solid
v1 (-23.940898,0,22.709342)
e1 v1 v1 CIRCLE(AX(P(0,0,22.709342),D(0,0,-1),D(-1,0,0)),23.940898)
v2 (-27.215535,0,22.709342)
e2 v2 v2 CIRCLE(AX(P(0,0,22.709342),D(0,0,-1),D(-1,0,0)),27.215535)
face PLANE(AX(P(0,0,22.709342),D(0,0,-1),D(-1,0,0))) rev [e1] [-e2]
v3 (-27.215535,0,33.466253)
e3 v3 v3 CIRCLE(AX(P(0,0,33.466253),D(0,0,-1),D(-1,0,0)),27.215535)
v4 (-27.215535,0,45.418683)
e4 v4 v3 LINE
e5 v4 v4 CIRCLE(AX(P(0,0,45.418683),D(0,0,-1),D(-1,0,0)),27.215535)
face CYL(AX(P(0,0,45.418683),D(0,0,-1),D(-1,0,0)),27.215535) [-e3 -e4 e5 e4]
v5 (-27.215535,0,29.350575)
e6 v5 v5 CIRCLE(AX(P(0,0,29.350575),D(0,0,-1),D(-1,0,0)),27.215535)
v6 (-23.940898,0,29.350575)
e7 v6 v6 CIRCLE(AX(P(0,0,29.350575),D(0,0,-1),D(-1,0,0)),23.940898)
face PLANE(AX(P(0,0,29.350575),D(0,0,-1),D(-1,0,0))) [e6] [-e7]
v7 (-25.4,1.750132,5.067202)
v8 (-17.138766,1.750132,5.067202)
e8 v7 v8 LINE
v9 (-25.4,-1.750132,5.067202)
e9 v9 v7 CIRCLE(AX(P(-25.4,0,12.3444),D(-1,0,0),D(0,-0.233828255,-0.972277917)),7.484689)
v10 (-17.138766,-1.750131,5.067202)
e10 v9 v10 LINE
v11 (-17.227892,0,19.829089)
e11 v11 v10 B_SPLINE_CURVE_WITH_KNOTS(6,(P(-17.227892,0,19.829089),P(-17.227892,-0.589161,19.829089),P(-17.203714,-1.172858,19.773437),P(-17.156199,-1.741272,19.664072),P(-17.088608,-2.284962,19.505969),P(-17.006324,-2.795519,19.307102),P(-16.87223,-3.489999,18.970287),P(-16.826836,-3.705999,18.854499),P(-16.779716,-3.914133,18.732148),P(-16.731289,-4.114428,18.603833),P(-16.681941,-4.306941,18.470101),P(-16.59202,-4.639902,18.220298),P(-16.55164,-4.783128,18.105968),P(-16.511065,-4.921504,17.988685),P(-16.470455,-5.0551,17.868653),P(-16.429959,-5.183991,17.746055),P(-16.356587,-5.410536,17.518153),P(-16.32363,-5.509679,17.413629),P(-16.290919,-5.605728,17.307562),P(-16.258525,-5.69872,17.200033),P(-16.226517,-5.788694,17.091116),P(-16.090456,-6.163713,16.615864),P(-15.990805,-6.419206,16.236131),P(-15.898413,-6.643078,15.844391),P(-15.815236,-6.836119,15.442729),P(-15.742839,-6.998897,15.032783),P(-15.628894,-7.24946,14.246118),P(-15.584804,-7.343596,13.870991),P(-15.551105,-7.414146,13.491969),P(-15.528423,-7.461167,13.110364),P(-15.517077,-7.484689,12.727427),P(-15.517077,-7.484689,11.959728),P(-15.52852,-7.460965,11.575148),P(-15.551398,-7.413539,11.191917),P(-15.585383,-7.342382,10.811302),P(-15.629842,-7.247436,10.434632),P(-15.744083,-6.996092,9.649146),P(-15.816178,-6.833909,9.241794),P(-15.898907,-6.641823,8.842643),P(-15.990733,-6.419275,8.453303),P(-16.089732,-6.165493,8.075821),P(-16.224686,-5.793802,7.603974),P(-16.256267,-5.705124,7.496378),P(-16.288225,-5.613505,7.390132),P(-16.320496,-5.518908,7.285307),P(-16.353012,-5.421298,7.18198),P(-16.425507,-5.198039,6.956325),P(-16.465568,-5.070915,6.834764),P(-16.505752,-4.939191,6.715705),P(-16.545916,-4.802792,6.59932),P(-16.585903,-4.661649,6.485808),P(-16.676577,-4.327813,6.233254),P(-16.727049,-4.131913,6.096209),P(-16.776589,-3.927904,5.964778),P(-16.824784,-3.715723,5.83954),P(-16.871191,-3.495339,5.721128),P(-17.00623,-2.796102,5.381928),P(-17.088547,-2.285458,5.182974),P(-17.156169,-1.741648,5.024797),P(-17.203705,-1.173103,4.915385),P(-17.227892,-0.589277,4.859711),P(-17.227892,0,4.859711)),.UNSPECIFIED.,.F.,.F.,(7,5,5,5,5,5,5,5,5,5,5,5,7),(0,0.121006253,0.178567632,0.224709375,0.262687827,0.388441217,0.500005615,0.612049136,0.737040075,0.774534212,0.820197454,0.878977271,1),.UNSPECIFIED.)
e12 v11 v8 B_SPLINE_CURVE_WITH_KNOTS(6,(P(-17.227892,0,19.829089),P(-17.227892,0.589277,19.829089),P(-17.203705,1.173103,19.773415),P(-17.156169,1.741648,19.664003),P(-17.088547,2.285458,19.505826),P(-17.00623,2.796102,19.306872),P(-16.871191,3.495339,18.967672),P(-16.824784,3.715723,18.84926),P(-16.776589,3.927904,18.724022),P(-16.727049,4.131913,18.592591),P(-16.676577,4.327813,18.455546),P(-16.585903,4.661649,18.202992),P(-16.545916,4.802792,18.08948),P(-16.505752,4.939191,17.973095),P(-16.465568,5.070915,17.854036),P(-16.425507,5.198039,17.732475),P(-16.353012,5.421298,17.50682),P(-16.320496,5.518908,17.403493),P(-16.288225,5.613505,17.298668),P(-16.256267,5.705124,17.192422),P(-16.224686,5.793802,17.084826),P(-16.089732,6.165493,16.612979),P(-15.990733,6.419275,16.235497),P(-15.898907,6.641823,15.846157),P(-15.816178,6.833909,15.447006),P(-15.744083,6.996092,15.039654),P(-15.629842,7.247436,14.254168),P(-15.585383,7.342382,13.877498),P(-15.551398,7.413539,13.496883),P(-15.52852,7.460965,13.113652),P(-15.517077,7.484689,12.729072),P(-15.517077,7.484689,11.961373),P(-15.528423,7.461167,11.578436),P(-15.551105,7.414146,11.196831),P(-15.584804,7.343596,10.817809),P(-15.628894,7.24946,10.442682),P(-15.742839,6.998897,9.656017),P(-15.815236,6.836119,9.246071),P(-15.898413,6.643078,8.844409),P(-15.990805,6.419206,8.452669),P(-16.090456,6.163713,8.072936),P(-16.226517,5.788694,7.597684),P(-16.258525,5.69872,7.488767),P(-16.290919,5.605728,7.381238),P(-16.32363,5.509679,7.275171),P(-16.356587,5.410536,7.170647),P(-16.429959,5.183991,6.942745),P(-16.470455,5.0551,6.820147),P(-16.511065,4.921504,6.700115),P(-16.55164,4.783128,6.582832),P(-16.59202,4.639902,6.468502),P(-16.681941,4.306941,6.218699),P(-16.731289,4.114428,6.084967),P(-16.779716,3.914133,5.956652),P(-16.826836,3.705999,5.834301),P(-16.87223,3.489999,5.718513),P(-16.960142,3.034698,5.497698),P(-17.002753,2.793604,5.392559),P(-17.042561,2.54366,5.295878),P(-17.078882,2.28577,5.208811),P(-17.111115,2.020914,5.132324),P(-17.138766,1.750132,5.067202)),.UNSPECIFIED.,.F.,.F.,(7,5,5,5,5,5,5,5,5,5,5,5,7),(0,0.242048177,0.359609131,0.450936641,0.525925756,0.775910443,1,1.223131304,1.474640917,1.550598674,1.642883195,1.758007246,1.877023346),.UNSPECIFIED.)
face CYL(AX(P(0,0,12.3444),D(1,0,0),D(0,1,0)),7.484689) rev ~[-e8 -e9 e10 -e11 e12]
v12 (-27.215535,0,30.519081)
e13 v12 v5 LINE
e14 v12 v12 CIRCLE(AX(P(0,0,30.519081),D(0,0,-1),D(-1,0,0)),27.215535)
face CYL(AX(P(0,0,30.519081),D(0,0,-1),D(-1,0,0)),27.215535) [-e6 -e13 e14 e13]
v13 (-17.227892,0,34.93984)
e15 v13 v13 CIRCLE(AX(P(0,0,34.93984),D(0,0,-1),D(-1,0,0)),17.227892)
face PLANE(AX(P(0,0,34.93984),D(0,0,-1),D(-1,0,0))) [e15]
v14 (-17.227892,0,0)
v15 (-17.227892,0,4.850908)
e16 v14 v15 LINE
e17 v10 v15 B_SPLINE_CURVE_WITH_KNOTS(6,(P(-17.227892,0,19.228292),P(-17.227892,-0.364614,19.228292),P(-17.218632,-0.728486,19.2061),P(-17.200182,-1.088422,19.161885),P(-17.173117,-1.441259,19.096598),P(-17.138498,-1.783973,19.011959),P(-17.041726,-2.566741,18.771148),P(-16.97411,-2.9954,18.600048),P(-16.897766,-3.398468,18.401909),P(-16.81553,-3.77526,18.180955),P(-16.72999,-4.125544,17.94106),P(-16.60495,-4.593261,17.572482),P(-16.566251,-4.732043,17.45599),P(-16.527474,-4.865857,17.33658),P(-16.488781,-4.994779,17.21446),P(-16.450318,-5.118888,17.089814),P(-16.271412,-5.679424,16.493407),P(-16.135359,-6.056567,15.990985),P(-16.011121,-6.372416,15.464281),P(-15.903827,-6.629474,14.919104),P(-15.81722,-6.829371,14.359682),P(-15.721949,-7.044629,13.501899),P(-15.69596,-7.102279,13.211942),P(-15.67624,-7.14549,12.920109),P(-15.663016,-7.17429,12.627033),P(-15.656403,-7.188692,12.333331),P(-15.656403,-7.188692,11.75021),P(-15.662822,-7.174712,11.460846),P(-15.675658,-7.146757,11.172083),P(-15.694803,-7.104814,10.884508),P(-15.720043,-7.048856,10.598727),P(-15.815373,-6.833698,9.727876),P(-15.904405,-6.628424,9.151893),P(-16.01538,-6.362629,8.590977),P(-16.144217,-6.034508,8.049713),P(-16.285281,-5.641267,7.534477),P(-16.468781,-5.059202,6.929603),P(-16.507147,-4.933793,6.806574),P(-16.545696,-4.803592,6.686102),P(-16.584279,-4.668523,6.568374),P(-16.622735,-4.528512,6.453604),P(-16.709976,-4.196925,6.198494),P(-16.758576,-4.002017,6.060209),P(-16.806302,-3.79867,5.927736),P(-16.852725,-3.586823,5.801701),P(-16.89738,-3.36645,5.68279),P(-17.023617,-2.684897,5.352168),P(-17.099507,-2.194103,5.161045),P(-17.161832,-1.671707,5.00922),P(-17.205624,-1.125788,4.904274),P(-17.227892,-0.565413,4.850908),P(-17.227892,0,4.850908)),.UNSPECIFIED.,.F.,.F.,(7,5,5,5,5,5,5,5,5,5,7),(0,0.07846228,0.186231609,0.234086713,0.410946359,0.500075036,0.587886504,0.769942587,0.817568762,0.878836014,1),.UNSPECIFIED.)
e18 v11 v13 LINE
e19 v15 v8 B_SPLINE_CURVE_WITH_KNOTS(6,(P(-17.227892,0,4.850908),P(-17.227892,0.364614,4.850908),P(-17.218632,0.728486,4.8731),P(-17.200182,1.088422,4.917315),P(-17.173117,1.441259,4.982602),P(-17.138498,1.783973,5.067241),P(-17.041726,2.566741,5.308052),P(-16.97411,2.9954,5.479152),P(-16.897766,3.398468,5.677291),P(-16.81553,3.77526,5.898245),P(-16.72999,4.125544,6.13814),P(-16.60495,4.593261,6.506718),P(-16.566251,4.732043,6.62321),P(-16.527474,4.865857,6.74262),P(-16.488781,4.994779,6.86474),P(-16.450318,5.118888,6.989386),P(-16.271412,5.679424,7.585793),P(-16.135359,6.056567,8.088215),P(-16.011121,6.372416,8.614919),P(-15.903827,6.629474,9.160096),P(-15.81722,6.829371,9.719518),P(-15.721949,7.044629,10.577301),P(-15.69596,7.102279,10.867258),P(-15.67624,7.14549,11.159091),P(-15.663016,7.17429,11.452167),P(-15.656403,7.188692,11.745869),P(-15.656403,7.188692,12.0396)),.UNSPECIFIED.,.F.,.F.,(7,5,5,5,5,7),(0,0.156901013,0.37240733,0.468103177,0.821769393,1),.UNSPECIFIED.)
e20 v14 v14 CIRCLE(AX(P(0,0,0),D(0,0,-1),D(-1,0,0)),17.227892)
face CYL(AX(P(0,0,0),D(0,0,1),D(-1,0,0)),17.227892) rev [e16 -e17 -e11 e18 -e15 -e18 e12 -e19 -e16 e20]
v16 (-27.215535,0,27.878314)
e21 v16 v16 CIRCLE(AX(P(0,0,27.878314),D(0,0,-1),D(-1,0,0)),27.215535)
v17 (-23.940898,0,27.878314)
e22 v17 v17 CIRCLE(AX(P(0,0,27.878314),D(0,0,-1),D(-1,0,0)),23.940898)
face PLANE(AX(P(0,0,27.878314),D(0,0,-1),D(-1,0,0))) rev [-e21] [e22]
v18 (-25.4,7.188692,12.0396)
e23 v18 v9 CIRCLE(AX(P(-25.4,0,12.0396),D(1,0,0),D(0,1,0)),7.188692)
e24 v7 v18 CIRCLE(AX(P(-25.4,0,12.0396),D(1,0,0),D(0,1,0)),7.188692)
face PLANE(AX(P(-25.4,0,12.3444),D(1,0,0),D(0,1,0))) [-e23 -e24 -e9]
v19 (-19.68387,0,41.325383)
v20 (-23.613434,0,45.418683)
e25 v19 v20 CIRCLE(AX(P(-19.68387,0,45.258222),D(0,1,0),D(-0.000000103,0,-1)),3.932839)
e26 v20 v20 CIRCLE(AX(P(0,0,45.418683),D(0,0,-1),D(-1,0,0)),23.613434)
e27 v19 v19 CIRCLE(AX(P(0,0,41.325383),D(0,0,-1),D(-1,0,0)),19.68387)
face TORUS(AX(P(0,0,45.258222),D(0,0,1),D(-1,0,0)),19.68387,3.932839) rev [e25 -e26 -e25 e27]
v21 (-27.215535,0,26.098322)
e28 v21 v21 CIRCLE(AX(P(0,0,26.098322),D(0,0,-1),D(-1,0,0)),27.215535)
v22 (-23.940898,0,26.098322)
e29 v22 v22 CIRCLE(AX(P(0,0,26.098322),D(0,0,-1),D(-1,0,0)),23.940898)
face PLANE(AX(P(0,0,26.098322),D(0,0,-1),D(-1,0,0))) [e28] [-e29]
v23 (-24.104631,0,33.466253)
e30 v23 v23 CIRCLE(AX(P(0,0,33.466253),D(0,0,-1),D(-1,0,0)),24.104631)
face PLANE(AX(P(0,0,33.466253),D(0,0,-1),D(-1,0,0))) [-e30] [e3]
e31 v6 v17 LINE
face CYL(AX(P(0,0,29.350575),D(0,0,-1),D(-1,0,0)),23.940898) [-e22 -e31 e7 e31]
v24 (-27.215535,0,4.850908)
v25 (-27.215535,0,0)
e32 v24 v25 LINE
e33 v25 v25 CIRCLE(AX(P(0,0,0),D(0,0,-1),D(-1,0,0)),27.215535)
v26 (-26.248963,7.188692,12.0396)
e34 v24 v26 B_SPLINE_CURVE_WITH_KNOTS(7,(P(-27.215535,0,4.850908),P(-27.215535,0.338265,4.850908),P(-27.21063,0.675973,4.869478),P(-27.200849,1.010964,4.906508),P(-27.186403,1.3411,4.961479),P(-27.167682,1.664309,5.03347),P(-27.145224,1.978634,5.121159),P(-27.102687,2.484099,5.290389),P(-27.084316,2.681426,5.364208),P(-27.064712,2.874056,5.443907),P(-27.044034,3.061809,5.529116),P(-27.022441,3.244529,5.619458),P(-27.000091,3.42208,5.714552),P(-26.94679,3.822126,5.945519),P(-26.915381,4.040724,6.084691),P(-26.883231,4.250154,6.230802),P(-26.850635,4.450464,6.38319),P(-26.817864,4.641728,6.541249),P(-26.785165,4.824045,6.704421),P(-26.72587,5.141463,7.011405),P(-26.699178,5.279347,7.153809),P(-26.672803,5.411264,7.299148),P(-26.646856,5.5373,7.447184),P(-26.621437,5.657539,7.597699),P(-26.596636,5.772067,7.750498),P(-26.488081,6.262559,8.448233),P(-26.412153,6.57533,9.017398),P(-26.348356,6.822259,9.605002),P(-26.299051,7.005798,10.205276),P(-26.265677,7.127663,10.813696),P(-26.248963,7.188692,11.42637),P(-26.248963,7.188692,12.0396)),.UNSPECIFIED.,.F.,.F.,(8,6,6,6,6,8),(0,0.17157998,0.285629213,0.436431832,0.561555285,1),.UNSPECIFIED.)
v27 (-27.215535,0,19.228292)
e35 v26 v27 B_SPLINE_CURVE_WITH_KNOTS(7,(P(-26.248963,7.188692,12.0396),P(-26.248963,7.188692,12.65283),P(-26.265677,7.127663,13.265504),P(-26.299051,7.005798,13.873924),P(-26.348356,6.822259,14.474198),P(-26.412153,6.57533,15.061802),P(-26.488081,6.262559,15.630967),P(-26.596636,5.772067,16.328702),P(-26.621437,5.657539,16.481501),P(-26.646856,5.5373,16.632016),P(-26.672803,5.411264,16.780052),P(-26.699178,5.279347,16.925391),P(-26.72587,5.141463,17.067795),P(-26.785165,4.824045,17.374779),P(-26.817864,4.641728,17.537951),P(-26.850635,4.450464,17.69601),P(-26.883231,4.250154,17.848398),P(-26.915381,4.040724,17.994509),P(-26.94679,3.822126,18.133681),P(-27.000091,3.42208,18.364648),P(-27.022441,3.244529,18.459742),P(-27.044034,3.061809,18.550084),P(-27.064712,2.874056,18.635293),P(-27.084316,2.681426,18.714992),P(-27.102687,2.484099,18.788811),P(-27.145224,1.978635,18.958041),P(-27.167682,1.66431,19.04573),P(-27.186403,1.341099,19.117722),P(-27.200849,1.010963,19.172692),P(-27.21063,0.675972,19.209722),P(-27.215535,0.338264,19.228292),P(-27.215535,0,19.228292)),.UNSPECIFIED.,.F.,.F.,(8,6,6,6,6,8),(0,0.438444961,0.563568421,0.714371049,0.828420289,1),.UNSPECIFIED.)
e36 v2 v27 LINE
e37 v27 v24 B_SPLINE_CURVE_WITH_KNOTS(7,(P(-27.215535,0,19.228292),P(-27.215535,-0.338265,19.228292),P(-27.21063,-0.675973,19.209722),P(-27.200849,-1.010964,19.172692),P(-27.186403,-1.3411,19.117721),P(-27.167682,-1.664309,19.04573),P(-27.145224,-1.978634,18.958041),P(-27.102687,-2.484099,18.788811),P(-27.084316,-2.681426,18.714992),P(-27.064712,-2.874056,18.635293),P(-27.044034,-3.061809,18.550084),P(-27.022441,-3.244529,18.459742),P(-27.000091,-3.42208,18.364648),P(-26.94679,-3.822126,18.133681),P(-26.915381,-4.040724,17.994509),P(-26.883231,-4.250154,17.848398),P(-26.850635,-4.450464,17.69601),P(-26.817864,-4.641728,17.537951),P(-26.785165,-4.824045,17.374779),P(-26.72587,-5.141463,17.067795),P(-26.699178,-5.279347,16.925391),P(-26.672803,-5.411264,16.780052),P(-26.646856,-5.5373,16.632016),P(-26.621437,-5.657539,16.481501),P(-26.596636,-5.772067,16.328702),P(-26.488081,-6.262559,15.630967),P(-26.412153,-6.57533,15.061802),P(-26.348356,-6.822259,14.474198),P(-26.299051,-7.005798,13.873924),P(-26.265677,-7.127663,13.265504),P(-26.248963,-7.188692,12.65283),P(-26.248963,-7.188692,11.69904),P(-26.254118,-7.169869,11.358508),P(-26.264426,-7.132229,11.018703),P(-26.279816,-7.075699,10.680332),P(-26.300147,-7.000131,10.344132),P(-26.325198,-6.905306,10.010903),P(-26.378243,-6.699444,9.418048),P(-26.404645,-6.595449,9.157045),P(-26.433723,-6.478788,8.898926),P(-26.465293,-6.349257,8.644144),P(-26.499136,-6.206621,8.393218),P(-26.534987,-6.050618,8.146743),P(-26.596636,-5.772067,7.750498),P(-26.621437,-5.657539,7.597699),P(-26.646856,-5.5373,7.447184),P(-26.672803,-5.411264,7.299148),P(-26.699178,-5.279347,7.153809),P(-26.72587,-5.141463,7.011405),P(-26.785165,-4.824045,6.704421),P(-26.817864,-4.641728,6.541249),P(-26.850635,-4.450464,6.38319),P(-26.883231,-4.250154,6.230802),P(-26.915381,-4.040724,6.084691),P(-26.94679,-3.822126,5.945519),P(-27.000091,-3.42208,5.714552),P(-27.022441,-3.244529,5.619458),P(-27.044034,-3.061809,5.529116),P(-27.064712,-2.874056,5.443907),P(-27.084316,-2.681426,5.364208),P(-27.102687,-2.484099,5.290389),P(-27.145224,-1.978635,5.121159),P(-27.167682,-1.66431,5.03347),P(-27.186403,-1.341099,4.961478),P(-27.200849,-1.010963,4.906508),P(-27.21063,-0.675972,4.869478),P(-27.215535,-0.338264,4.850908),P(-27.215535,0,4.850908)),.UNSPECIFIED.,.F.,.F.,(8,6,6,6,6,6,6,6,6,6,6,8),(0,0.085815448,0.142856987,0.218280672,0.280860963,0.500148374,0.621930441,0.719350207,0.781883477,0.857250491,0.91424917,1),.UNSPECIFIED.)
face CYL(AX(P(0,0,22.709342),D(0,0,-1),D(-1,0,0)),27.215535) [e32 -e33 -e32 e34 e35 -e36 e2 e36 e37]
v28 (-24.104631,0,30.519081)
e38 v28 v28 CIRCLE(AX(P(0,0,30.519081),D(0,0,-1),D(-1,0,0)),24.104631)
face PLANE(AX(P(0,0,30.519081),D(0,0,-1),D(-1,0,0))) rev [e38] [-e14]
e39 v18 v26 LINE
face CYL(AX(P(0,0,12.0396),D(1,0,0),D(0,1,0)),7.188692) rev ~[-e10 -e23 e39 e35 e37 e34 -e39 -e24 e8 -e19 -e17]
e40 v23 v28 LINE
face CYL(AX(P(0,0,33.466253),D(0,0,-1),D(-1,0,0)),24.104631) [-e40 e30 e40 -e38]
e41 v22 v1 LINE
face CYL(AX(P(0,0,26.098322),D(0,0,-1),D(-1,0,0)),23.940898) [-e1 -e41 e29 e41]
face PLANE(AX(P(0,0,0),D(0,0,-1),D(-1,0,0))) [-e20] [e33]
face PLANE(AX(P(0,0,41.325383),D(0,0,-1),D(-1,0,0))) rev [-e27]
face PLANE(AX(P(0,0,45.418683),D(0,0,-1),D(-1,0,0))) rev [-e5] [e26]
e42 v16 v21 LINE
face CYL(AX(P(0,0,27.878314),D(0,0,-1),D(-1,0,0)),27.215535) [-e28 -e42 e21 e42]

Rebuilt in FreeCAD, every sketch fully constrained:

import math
import FreeCAD as App
import Part
import Sketcher
from FreeCAD import Vector
Q = App.Units.Quantity

doc = App.newDocument("Part")
body = doc.addObject("PartDesign::Body", "Body")

# Sketch on XZ plane
sketch1 = body.newObject("Sketcher::SketchObject", "Sketch")
sketch1.AttachmentSupport = (doc.getObject("XZ_Plane"), [""])
sketch1.MapMode = "FlatFace"
sketch1.addGeometry([
    Part.LineSegment(Vector(-27.2, 0, 0), Vector(-17.2, 0, 0)),  # 0
    Part.LineSegment(Vector(-17.2, 0, 0), Vector(-17.2, 34.9, 0)),  # 1
    Part.LineSegment(Vector(-17.2, 34.9, 0), Vector(0, 34.9, 0)),  # 2
    Part.LineSegment(Vector(0, 34.9, 0), Vector(0, 41.3, 0)),  # 3
    Part.LineSegment(Vector(0, 41.3, 0), Vector(-19.7, 41.3, 0)),  # 4
    Part.ArcOfCircle(Part.Circle(Vector(-19.7, 45.3, 0), Vector(0, 0, 1), 3.9), math.radians(178), math.radians(270)),  # 5
    Part.LineSegment(Vector(-23.6, 45.4, 0), Vector(-27.2, 45.4, 0)),  # 6
    Part.LineSegment(Vector(-27.2, 45.4, 0), Vector(-27.2, 33.5, 0)),  # 7
    Part.LineSegment(Vector(-27.2, 33.5, 0), Vector(-24.1, 33.5, 0)),  # 8
    Part.LineSegment(Vector(-24.1, 33.5, 0), Vector(-24.1, 30.5, 0)),  # 9
    Part.LineSegment(Vector(-24.1, 30.5, 0), Vector(-27.2, 30.5, 0)),  # 10
    Part.LineSegment(Vector(-27.2, 30.5, 0), Vector(-27.2, 29.4, 0)),  # 11
    Part.LineSegment(Vector(-27.2, 29.4, 0), Vector(-23.9, 29.4, 0)),  # 12
    Part.LineSegment(Vector(-23.9, 29.4, 0), Vector(-23.9, 27.9, 0)),  # 13
    Part.LineSegment(Vector(-23.9, 27.9, 0), Vector(-27.2, 27.9, 0)),  # 14
    Part.LineSegment(Vector(-27.2, 27.9, 0), Vector(-27.2, 26.1, 0)),  # 15
    Part.LineSegment(Vector(-27.2, 26.1, 0), Vector(-23.9, 26.1, 0)),  # 16
    Part.LineSegment(Vector(-23.9, 26.1, 0), Vector(-23.9, 22.7, 0)),  # 17
    Part.LineSegment(Vector(-23.9, 22.7, 0), Vector(-27.2, 22.7, 0)),  # 18
    Part.LineSegment(Vector(-27.2, 22.7, 0), Vector(-27.2, 0, 0)),  # 19
], False)
sketch1.addConstraint([
    Sketcher.Constraint("Coincident", 0, 2, 1, 1),
    Sketcher.Constraint("Coincident", 1, 2, 2, 1),
    Sketcher.Constraint("Coincident", 2, 2, 3, 1),
    Sketcher.Constraint("Coincident", 3, 2, 4, 1),
    Sketcher.Constraint("Tangent", 4, 2, 5, 2),
    Sketcher.Constraint("Coincident", 5, 1, 6, 1),
    Sketcher.Constraint("Coincident", 6, 2, 7, 1),
    Sketcher.Constraint("Coincident", 7, 2, 8, 1),
    Sketcher.Constraint("Coincident", 8, 2, 9, 1),
    Sketcher.Constraint("Coincident", 9, 2, 10, 1),
    Sketcher.Constraint("Coincident", 10, 2, 11, 1),
    Sketcher.Constraint("Coincident", 11, 2, 12, 1),
    Sketcher.Constraint("Coincident", 12, 2, 13, 1),
    Sketcher.Constraint("Coincident", 13, 2, 14, 1),
    Sketcher.Constraint("Coincident", 14, 2, 15, 1),
    Sketcher.Constraint("Coincident", 15, 2, 16, 1),
    Sketcher.Constraint("Coincident", 16, 2, 17, 1),
    Sketcher.Constraint("Coincident", 17, 2, 18, 1),
    Sketcher.Constraint("Coincident", 18, 2, 19, 1),
    Sketcher.Constraint("Coincident", 19, 2, 0, 1),
    Sketcher.Constraint("Horizontal", 0),
    Sketcher.Constraint("Vertical", 1),
    Sketcher.Constraint("Horizontal", 2),
    Sketcher.Constraint("Vertical", 3),
    Sketcher.Constraint("Horizontal", 4),
    Sketcher.Constraint("Horizontal", 6),
    Sketcher.Constraint("Vertical", 7),
    Sketcher.Constraint("Horizontal", 8),
    Sketcher.Constraint("Vertical", 9),
    Sketcher.Constraint("Horizontal", 10),
    Sketcher.Constraint("Vertical", 11),
    Sketcher.Constraint("Horizontal", 12),
    Sketcher.Constraint("Vertical", 13),
    Sketcher.Constraint("Horizontal", 14),
    Sketcher.Constraint("Vertical", 15),
    Sketcher.Constraint("Horizontal", 16),
    Sketcher.Constraint("Vertical", 17),
    Sketcher.Constraint("Horizontal", 18),
    Sketcher.Constraint("Vertical", 19),
    Sketcher.Constraint("PointOnObject", 0, 2, -1),
    Sketcher.Constraint("PointOnObject", 2, 2, -2),
    Sketcher.Constraint("Vertical", 7, 2, 10, 2),
    Sketcher.Constraint("Vertical", 11, 2, 14, 2),
    Sketcher.Constraint("Vertical", 13, 2, 16, 2),
    Sketcher.Constraint("Vertical", 15, 2, 18, 2),
    Sketcher.Constraint("Radius", 5, 3.932839),
    Sketcher.Constraint("DistanceX", 6, 2, 6, 1, 3.602101),
    Sketcher.Constraint("DistanceX", 4, 2, 4, 1, 19.68387),
    Sketcher.Constraint("DistanceY", 1, 1, 1, 2, 34.93984),
    Sketcher.Constraint("DistanceY", 7, 2, 7, 1, 11.95243),
    Sketcher.Constraint("DistanceY", 13, 2, 13, 1, 1.472261),
    Sketcher.Constraint("DistanceY", 17, 2, 17, 1, 3.38898),
    Sketcher.Constraint("DistanceY", 19, 2, 19, 1, 22.709342),
    Sketcher.Constraint("DistanceX", 12, 2, -1, 1, 23.940898),
    Sketcher.Constraint("DistanceY", 4, 2, 5, 1, 4.0933),
    Sketcher.Constraint("DistanceX", 0, 1, 0, 2, 9.987643),
    Sketcher.Constraint("DistanceX", 8, 1, 8, 2, 3.110904),
    Sketcher.Constraint("DistanceY", 3, 1, 3, 2, 6.385543),
    Sketcher.Constraint("DistanceY", 9, 2, 9, 1, 2.947172),
    Sketcher.Constraint("DistanceY", 11, 2, 11, 1, 1.168506),
])
revolution = body.newObject("PartDesign::Revolution", "Revolution")
revolution.Profile = sketch1
revolution.ReferenceAxis = (sketch1, ["V_Axis"])
revolution.Angle = 360

# Sketch on YZ plane
sketch2 = body.newObject("Sketcher::SketchObject", "Sketch001")
sketch2.AttachmentSupport = (doc.getObject("YZ_Plane"), [""])
sketch2.MapMode = "FlatFace"
sketch2.addGeometry(Part.Circle(Vector(0, 12, 0), Vector(0, 0, 1), 7), False)
sketch2.addConstraint([
    Sketcher.Constraint("PointOnObject", 0, 3, -2),
    Sketcher.Constraint("DistanceY", -1, 1, 0, 3, Q("0.474 in")),
    Sketcher.Constraint("Diameter", 0, 14.377384),
])
pocket1 = body.newObject("PartDesign::Pocket", "Pocket")
pocket1.Profile = sketch2
pocket1.Length = Q("5 in")

# Sketch on YZ plane
sketch3 = body.newObject("Sketcher::SketchObject", "Sketch002")
sketch3.AttachmentSupport = (doc.getObject("YZ_Plane"), [""])
sketch3.MapMode = "FlatFace"
sketch3.addGeometry(Part.Circle(Vector(0, 12, 0), Vector(0, 0, 1), 7), False)
sketch3.addConstraint([
    Sketcher.Constraint("PointOnObject", 0, 3, -2),
    Sketcher.Constraint("Diameter", 0, 14.969378),
    Sketcher.Constraint("DistanceY", -1, 1, 0, 3, Q("0.486 in")),
])
pocket2 = body.newObject("PartDesign::Pocket", "Pocket001")
pocket2.Profile = sketch3
pocket2.Length = Q("1 in")

doc.recompute()
